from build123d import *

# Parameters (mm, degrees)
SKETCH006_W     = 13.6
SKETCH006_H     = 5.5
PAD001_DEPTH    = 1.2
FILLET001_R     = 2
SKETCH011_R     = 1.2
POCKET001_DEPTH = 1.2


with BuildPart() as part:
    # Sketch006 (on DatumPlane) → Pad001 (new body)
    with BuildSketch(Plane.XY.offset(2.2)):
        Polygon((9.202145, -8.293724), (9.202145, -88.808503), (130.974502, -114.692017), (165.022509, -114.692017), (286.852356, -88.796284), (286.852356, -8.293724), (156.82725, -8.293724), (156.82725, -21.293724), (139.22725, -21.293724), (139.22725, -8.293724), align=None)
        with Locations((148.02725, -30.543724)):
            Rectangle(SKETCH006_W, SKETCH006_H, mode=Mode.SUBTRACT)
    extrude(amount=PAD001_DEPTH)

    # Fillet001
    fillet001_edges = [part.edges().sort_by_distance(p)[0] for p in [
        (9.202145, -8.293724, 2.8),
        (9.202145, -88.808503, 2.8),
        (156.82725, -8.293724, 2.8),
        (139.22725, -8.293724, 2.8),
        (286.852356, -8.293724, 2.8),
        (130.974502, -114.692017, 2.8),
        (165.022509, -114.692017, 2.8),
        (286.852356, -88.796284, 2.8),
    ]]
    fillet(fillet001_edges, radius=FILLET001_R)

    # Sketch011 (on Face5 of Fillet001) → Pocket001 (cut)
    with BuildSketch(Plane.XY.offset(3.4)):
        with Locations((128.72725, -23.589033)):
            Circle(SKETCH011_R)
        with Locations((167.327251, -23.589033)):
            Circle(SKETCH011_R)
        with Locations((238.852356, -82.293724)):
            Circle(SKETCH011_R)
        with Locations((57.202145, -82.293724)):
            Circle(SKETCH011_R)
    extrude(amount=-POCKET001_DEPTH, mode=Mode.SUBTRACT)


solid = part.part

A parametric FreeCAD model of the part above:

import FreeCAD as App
import Part
import Sketcher

V = App.Vector
Q = App.Units.Quantity


def edges_at(feature, points):
    """Names of the edges that pass closest to the given points."""
    edges = feature.Shape.Edges
    near = lambda p: min(range(len(edges)), key=lambda i: edges[i].distToShape(Part.Vertex(*p))[0])
    return sorted({f"Edge{near(p) + 1}" for p in points})

doc = App.newDocument("Part")
body = doc.addObject("PartDesign::Body", "Body")

sketch1 = body.newObject("Sketcher::SketchObject", "Sketch")
sketch1.AttachmentSupport = (doc.getObject("XY_Plane"), [""])
sketch1.MapMode = "FlatFace"
sketch1.AttachmentOffset = App.Placement(V(0, 0, 2.2), App.Rotation())
sketch1.addGeometry([
    Part.LineSegment(V(9, -8, 0), V(9, -89, 0)),
    Part.LineSegment(V(9, -89, 0), V(131, -115, 0)),
    Part.LineSegment(V(131, -115, 0), V(165, -115, 0)),
    Part.LineSegment(V(165, -115, 0), V(287, -89, 0)),
    Part.LineSegment(V(287, -89, 0), V(287, -8, 0)),
    Part.LineSegment(V(287, -8, 0), V(157, -8, 0)),
    Part.LineSegment(V(157, -8, 0), V(157, -21, 0)),
    Part.LineSegment(V(157, -21, 0), V(139, -21, 0)),
    Part.LineSegment(V(139, -21, 0), V(139, -8, 0)),
    Part.LineSegment(V(139, -8, 0), V(9, -8, 0)),
    Part.LineSegment(V(155, -33, 0), V(141, -33, 0)),
    Part.LineSegment(V(141, -33, 0), V(141, -28, 0)),
    Part.LineSegment(V(141, -28, 0), V(155, -28, 0)),
    Part.LineSegment(V(155, -28, 0), V(155, -33, 0)),
], False)
sketch1.addConstraint([
    Sketcher.Constraint("Coincident", 0, 2, 1, 1),
    Sketcher.Constraint("Coincident", 1, 2, 2, 1),
    Sketcher.Constraint("Coincident", 2, 2, 3, 1),
    Sketcher.Constraint("Coincident", 3, 2, 4, 1),
    Sketcher.Constraint("Coincident", 4, 2, 5, 1),
    Sketcher.Constraint("Coincident", 5, 2, 6, 1),
    Sketcher.Constraint("Coincident", 6, 2, 7, 1),
    Sketcher.Constraint("Coincident", 7, 2, 8, 1),
    Sketcher.Constraint("Coincident", 8, 2, 9, 1),
    Sketcher.Constraint("Coincident", 9, 2, 0, 1),
    Sketcher.Constraint("Coincident", 10, 2, 11, 1),
    Sketcher.Constraint("Coincident", 11, 2, 12, 1),
    Sketcher.Constraint("Coincident", 12, 2, 13, 1),
    Sketcher.Constraint("Coincident", 13, 2, 10, 1),
    Sketcher.Constraint("Vertical", 0),
    Sketcher.Constraint("Horizontal", 2),
    Sketcher.Constraint("Vertical", 4),
    Sketcher.Constraint("Horizontal", 5),
    Sketcher.Constraint("Vertical", 6),
    Sketcher.Constraint("Horizontal", 7),
    Sketcher.Constraint("Vertical", 8),
    Sketcher.Constraint("Horizontal", 9),
    Sketcher.Constraint("Horizontal", 10),
    Sketcher.Constraint("Vertical", 11),
    Sketcher.Constraint("Horizontal", 12),
    Sketcher.Constraint("Vertical", 13),
    Sketcher.Constraint("Horizontal", 5, 2, 8, 2),
    Sketcher.Constraint("Equal", 5, 9),
    Sketcher.Constraint("DistanceY", 6, 2, 6, 1, 13.0),
    Sketcher.Constraint("Angle", 1, Q("-12 deg")),
    Sketcher.Constraint("Angle", 3, Q("12 deg")),
    Sketcher.Constraint("DistanceX", 7, 2, 7, 1, 17.6),
    Sketcher.Constraint("DistanceX", 10, 2, 10, 1, 13.6),
    Sketcher.Constraint("DistanceY", 11, 1, 11, 2, 5.5),
    Sketcher.Constraint("DistanceX", 7, 2, 10, 2, 2.0),
    Sketcher.Constraint("DistanceY", 10, 2, 7, 2, 12.0),
    Sketcher.Constraint("Distance", 3, 124.551598),
    Sketcher.Constraint("DistanceY", 0, 2, 0, 1, 80.514779),
    Sketcher.Constraint("DistanceY", 4, 1, 4, 2, 80.50256),
    Sketcher.Constraint("DistanceX", -1, 1, 1, 2, 130.974502),
    Sketcher.Constraint("DistanceX", 2, 1, 2, 2, 34.048007),
    Sketcher.Constraint("DistanceY", 0, 2, -1, 1, 88.808503),
])
pad1 = body.newObject("PartDesign::Pad", "Pad")
pad1.Profile = sketch1
pad1.Length = 1.2
doc.recompute()

fillet = body.newObject("PartDesign::Fillet", "Fillet")
fillet.Base = (pad1, edges_at(pad1, [
    (9.202, -8.294, 2.8),
    (9.202, -88.809, 2.8),
    (156.827, -8.294, 2.8),
    (139.227, -8.294, 2.8),
    (286.852, -8.294, 2.8),
    (130.975, -114.692, 2.8),
    (165.023, -114.692, 2.8),
    (286.852, -88.796, 2.8),
]))
fillet.Radius = 2

sketch2 = body.newObject("Sketcher::SketchObject", "Sketch001")
sketch2.AttachmentSupport = (doc.getObject("XY_Plane"), [""])
sketch2.MapMode = "FlatFace"
sketch2.AttachmentOffset = App.Placement(V(0, 0, 3.4), App.Rotation())
sketch2.addGeometry([
    Part.Circle(V(128.7, -23.6, 0), V(0, 0, 1), 1.2),
    Part.Circle(V(167.3, -23.6, 0), V(0, 0, 1), 1.2),
    Part.Circle(V(238.9, -82.3, 0), V(0, 0, 1), 1.2),
    Part.Circle(V(57.2, -82.3, 0), V(0, 0, 1), 1.2),
], False)
sketch2.addConstraint([
    Sketcher.Constraint("Equal", 0, 1),
    Sketcher.Constraint("Equal", 1, 2),
    Sketcher.Constraint("Equal", 2, 3),
    Sketcher.Constraint("Horizontal", 0, 3, 1, 3),
    Sketcher.Constraint("Horizontal", 2, 3, 3, 3),
    Sketcher.Constraint("Diameter", 0, 2.4),
    Sketcher.Constraint("DistanceX", 0, 3, 1, 3, 38.600001),
    Sketcher.Constraint("DistanceX", -1, 1, 0, 3, 128.72725),
    Sketcher.Constraint("DistanceY", 2, 3, 1, 3, 58.704691),
    Sketcher.Constraint("DistanceX", 3, 3, 2, 3, 181.650211),
    Sketcher.Constraint("DistanceY", 0, 3, -1, 1, 23.589033),
    Sketcher.Constraint("DistanceX", -1, 1, 2, 3, 238.852356),
])
pocket1 = body.newObject("PartDesign::Pocket", "Pocket")
pocket1.Profile = sketch2
pocket1.Length = 1.2

doc.recompute()
